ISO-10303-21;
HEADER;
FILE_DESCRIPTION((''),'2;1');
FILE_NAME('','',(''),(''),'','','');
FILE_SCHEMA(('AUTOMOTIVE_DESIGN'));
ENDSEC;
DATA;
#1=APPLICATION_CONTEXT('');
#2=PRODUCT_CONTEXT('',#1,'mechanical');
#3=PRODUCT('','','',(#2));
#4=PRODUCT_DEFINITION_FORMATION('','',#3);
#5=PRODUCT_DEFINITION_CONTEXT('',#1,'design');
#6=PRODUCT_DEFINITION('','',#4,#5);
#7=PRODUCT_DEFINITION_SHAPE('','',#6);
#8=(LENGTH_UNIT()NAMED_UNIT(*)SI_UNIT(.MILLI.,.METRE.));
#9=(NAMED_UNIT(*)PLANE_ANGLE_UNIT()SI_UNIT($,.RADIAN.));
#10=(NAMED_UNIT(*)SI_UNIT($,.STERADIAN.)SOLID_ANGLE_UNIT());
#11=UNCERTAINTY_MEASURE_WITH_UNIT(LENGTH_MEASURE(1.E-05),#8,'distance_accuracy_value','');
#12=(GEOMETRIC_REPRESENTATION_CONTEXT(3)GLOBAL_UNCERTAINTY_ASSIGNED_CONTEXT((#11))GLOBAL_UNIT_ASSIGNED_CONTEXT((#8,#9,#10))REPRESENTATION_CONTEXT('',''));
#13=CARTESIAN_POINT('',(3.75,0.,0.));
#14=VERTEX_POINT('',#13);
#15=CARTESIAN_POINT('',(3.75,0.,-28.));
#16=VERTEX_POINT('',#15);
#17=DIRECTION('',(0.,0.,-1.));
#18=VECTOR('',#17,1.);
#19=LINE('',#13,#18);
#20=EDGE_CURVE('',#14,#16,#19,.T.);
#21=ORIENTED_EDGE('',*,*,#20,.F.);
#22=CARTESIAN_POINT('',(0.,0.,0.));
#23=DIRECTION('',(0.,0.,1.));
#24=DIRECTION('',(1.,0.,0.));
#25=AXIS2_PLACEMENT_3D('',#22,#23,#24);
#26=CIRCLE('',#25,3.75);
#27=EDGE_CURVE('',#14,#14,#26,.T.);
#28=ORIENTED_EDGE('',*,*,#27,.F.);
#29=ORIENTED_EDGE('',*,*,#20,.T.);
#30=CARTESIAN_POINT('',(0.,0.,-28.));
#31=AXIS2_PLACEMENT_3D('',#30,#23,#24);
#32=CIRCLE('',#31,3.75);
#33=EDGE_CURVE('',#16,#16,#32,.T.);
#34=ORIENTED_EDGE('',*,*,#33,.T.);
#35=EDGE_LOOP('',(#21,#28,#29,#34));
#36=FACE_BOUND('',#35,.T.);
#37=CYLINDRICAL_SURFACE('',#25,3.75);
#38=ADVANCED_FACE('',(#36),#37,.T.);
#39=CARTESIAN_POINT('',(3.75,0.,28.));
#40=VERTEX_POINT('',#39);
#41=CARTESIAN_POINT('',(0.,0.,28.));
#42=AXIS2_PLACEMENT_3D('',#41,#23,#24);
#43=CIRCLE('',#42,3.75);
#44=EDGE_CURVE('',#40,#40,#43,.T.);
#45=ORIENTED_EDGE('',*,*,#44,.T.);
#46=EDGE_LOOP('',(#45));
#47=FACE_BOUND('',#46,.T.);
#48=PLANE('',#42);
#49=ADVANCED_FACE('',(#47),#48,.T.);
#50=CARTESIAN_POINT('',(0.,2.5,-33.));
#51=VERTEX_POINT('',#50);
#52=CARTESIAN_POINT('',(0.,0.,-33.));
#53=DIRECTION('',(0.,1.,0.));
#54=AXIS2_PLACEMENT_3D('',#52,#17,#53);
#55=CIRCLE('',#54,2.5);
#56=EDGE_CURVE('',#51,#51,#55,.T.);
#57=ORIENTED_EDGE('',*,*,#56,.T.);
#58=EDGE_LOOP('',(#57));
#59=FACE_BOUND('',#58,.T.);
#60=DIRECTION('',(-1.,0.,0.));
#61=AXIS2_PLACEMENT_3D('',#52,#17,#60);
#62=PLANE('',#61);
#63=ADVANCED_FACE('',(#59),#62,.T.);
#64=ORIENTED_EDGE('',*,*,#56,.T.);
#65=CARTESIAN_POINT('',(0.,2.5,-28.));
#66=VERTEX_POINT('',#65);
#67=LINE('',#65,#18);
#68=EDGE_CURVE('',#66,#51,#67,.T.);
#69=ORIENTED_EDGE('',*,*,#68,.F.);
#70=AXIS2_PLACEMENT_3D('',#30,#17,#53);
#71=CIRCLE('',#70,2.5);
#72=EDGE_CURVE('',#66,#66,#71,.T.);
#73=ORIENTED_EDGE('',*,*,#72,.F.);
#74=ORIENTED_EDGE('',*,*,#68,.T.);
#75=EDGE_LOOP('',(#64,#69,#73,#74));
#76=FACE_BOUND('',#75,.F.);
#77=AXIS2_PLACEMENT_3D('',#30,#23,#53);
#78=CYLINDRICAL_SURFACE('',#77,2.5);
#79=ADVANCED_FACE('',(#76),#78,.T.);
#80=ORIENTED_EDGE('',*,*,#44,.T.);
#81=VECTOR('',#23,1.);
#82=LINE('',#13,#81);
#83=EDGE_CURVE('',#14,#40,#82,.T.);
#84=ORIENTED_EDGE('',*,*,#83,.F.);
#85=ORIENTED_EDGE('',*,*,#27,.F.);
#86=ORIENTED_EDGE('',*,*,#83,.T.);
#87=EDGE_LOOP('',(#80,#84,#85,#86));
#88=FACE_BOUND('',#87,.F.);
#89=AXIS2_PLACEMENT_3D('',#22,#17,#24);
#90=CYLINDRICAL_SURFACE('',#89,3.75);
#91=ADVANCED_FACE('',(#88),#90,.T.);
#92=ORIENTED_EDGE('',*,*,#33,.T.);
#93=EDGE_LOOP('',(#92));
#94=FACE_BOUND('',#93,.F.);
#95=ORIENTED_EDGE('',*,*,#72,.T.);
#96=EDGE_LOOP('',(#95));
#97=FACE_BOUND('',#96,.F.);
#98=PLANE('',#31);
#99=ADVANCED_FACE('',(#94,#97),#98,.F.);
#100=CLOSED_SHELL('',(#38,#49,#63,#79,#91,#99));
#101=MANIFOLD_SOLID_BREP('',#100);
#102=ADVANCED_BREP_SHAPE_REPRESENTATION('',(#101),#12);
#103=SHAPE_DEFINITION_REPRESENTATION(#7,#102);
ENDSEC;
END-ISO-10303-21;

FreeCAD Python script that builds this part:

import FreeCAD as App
import Part
import Sketcher
Q = App.Units.Quantity

doc = App.newDocument("Part")
body = doc.addObject("PartDesign::Body", "Body")

# Sketch on XY plane
sketch1 = body.newObject("Sketcher::SketchObject", "Sketch")
sketch1.AttachmentSupport = (doc.getObject("XY_Plane"), [""])
sketch1.MapMode = "FlatFace"
sketch1.addGeometry(Part.Circle(App.Vector(0, 0, 0), App.Vector(0, 0, 1), 3.75), False)
sketch1.addConstraint(Sketcher.Constraint("Coincident", 0, 3, -1, 1))
sketch1.addConstraint(Sketcher.Constraint("Diameter", 0, Q("7.5 mm")))
pad1 = body.newObject("PartDesign::Pad", "Pad")
pad1.Profile = sketch1
pad1.Length = 56
pad1.Midplane = True

# Sketch on XY plane
sketch2 = body.newObject("Sketcher::SketchObject", "Sketch001")
sketch2.AttachmentSupport = (doc.getObject("XY_Plane"), [""])
sketch2.MapMode = "FlatFace"
sketch2.AttachmentOffset = App.Placement(App.Vector(0, 0, -28), App.Rotation())
sketch2.addGeometry(Part.Circle(App.Vector(0, 0, 0), App.Vector(0, 0, 1), 2.5), False)
sketch2.addConstraint(Sketcher.Constraint("Coincident", 0, 3, -1, 1))
sketch2.addConstraint(Sketcher.Constraint("Diameter", 0, Q("5 mm")))
pad2 = body.newObject("PartDesign::Pad", "Pad001")
pad2.Profile = sketch2
pad2.Type = "TwoLengths"
pad2.Length = 5
pad2.Length2 = 12.5
pad2.Reversed = True

doc.recompute()
